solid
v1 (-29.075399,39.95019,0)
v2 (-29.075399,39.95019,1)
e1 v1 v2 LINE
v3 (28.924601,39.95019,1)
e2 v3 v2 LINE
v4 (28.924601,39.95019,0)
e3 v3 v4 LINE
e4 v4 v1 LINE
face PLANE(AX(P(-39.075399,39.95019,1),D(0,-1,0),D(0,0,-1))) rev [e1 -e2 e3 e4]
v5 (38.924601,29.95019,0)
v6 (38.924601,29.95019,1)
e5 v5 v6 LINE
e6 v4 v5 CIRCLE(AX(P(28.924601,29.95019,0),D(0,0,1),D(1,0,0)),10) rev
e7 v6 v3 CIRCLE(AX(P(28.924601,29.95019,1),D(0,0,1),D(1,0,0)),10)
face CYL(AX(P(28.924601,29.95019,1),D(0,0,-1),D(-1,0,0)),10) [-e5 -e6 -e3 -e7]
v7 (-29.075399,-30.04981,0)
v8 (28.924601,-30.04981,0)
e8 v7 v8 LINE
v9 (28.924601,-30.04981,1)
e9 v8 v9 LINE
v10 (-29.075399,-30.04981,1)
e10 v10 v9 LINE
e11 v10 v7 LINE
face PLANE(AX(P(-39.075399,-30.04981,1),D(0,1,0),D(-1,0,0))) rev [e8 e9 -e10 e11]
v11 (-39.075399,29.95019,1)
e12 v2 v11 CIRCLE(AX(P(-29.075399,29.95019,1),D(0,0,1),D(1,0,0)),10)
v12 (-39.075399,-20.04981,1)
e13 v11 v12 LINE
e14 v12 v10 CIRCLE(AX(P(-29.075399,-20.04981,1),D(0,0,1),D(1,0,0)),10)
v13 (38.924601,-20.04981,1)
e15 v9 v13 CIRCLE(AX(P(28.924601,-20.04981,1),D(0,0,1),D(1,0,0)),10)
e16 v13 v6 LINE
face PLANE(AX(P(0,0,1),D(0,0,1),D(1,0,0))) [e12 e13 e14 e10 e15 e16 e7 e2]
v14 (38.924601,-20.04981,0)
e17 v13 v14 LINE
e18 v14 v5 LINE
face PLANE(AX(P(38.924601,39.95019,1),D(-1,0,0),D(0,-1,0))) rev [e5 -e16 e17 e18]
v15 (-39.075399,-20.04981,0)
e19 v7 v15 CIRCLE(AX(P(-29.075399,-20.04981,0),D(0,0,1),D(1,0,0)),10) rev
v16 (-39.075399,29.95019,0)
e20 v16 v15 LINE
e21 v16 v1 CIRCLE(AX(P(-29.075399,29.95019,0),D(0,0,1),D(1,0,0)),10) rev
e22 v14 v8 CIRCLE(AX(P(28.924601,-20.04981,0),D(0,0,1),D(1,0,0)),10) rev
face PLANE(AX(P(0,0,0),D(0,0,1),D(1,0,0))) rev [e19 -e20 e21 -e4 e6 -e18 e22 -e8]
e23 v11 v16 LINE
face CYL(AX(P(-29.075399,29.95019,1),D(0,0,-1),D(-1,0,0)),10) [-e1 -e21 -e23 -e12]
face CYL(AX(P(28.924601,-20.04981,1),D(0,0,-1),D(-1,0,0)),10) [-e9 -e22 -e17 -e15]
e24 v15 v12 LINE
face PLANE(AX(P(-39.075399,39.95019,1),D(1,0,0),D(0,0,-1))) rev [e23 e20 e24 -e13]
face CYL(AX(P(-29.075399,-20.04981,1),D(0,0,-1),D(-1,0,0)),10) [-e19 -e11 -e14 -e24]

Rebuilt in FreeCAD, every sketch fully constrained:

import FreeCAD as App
import Part
import Sketcher

V = App.Vector
Q = App.Units.Quantity


def edges_at(feature, points):
    """Names of the edges that pass closest to the given points."""
    edges = feature.Shape.Edges
    near = lambda p: min(range(len(edges)), key=lambda i: edges[i].distToShape(Part.Vertex(*p))[0])
    return sorted({f"Edge{near(p) + 1}" for p in points})

doc = App.newDocument("Part")
body = doc.addObject("PartDesign::Body", "Body")

# Sketch on XY plane
sketch1 = body.newObject("Sketcher::SketchObject", "Sketch")
sketch1.AttachmentSupport = (doc.getObject("XY_Plane"), [""])
sketch1.MapMode = "FlatFace"
sketch1.addGeometry([
    Part.LineSegment(V(-39.075399, 39.95019, 0), V(-39.075399, -30.04981, 0)),
    Part.LineSegment(V(-39.075399, -30.04981, 0), V(38.924601, -30.04981, 0)),
    Part.LineSegment(V(38.924601, -30.04981, 0), V(38.924601, 39.95019, 0)),
    Part.LineSegment(V(38.924601, 39.95019, 0), V(-39.075399, 39.95019, 0)),
], False)
sketch1.addConstraint([
    Sketcher.Constraint("Coincident", 0, 2, 1, 1),
    Sketcher.Constraint("Coincident", 1, 2, 2, 1),
    Sketcher.Constraint("Coincident", 2, 2, 3, 1),
    Sketcher.Constraint("Coincident", 3, 2, 0, 1),
    Sketcher.Constraint("Vertical", 0),
    Sketcher.Constraint("Horizontal", 1),
    Sketcher.Constraint("Vertical", 2),
    Sketcher.Constraint("Horizontal", 3),
    Sketcher.Constraint("DistanceX", 1, 1, 1, 2, Q("78 mm")),
    Sketcher.Constraint("DistanceY", 0, 2, 0, 1, Q("70 mm")),
    Sketcher.Constraint("DistanceX", 0, 2, -1, 1, Q("39.075399 mm")),
    Sketcher.Constraint("DistanceY", 0, 2, -1, 1, Q("30.04981 mm")),
])
pad1 = body.newObject("PartDesign::Pad", "Pad")
pad1.Profile = sketch1
pad1.Length = 1
doc.recompute()

fillet = body.newObject("PartDesign::Fillet", "Fillet")
fillet.Base = (pad1, edges_at(pad1, [
    (38.925, -30.05, 0.5),
    (-39.075, -30.05, 0.5),
    (-39.075, 39.95, 0.5),
    (38.925, 39.95, 0.5),
]))
fillet.Radius = 10

doc.recompute()
